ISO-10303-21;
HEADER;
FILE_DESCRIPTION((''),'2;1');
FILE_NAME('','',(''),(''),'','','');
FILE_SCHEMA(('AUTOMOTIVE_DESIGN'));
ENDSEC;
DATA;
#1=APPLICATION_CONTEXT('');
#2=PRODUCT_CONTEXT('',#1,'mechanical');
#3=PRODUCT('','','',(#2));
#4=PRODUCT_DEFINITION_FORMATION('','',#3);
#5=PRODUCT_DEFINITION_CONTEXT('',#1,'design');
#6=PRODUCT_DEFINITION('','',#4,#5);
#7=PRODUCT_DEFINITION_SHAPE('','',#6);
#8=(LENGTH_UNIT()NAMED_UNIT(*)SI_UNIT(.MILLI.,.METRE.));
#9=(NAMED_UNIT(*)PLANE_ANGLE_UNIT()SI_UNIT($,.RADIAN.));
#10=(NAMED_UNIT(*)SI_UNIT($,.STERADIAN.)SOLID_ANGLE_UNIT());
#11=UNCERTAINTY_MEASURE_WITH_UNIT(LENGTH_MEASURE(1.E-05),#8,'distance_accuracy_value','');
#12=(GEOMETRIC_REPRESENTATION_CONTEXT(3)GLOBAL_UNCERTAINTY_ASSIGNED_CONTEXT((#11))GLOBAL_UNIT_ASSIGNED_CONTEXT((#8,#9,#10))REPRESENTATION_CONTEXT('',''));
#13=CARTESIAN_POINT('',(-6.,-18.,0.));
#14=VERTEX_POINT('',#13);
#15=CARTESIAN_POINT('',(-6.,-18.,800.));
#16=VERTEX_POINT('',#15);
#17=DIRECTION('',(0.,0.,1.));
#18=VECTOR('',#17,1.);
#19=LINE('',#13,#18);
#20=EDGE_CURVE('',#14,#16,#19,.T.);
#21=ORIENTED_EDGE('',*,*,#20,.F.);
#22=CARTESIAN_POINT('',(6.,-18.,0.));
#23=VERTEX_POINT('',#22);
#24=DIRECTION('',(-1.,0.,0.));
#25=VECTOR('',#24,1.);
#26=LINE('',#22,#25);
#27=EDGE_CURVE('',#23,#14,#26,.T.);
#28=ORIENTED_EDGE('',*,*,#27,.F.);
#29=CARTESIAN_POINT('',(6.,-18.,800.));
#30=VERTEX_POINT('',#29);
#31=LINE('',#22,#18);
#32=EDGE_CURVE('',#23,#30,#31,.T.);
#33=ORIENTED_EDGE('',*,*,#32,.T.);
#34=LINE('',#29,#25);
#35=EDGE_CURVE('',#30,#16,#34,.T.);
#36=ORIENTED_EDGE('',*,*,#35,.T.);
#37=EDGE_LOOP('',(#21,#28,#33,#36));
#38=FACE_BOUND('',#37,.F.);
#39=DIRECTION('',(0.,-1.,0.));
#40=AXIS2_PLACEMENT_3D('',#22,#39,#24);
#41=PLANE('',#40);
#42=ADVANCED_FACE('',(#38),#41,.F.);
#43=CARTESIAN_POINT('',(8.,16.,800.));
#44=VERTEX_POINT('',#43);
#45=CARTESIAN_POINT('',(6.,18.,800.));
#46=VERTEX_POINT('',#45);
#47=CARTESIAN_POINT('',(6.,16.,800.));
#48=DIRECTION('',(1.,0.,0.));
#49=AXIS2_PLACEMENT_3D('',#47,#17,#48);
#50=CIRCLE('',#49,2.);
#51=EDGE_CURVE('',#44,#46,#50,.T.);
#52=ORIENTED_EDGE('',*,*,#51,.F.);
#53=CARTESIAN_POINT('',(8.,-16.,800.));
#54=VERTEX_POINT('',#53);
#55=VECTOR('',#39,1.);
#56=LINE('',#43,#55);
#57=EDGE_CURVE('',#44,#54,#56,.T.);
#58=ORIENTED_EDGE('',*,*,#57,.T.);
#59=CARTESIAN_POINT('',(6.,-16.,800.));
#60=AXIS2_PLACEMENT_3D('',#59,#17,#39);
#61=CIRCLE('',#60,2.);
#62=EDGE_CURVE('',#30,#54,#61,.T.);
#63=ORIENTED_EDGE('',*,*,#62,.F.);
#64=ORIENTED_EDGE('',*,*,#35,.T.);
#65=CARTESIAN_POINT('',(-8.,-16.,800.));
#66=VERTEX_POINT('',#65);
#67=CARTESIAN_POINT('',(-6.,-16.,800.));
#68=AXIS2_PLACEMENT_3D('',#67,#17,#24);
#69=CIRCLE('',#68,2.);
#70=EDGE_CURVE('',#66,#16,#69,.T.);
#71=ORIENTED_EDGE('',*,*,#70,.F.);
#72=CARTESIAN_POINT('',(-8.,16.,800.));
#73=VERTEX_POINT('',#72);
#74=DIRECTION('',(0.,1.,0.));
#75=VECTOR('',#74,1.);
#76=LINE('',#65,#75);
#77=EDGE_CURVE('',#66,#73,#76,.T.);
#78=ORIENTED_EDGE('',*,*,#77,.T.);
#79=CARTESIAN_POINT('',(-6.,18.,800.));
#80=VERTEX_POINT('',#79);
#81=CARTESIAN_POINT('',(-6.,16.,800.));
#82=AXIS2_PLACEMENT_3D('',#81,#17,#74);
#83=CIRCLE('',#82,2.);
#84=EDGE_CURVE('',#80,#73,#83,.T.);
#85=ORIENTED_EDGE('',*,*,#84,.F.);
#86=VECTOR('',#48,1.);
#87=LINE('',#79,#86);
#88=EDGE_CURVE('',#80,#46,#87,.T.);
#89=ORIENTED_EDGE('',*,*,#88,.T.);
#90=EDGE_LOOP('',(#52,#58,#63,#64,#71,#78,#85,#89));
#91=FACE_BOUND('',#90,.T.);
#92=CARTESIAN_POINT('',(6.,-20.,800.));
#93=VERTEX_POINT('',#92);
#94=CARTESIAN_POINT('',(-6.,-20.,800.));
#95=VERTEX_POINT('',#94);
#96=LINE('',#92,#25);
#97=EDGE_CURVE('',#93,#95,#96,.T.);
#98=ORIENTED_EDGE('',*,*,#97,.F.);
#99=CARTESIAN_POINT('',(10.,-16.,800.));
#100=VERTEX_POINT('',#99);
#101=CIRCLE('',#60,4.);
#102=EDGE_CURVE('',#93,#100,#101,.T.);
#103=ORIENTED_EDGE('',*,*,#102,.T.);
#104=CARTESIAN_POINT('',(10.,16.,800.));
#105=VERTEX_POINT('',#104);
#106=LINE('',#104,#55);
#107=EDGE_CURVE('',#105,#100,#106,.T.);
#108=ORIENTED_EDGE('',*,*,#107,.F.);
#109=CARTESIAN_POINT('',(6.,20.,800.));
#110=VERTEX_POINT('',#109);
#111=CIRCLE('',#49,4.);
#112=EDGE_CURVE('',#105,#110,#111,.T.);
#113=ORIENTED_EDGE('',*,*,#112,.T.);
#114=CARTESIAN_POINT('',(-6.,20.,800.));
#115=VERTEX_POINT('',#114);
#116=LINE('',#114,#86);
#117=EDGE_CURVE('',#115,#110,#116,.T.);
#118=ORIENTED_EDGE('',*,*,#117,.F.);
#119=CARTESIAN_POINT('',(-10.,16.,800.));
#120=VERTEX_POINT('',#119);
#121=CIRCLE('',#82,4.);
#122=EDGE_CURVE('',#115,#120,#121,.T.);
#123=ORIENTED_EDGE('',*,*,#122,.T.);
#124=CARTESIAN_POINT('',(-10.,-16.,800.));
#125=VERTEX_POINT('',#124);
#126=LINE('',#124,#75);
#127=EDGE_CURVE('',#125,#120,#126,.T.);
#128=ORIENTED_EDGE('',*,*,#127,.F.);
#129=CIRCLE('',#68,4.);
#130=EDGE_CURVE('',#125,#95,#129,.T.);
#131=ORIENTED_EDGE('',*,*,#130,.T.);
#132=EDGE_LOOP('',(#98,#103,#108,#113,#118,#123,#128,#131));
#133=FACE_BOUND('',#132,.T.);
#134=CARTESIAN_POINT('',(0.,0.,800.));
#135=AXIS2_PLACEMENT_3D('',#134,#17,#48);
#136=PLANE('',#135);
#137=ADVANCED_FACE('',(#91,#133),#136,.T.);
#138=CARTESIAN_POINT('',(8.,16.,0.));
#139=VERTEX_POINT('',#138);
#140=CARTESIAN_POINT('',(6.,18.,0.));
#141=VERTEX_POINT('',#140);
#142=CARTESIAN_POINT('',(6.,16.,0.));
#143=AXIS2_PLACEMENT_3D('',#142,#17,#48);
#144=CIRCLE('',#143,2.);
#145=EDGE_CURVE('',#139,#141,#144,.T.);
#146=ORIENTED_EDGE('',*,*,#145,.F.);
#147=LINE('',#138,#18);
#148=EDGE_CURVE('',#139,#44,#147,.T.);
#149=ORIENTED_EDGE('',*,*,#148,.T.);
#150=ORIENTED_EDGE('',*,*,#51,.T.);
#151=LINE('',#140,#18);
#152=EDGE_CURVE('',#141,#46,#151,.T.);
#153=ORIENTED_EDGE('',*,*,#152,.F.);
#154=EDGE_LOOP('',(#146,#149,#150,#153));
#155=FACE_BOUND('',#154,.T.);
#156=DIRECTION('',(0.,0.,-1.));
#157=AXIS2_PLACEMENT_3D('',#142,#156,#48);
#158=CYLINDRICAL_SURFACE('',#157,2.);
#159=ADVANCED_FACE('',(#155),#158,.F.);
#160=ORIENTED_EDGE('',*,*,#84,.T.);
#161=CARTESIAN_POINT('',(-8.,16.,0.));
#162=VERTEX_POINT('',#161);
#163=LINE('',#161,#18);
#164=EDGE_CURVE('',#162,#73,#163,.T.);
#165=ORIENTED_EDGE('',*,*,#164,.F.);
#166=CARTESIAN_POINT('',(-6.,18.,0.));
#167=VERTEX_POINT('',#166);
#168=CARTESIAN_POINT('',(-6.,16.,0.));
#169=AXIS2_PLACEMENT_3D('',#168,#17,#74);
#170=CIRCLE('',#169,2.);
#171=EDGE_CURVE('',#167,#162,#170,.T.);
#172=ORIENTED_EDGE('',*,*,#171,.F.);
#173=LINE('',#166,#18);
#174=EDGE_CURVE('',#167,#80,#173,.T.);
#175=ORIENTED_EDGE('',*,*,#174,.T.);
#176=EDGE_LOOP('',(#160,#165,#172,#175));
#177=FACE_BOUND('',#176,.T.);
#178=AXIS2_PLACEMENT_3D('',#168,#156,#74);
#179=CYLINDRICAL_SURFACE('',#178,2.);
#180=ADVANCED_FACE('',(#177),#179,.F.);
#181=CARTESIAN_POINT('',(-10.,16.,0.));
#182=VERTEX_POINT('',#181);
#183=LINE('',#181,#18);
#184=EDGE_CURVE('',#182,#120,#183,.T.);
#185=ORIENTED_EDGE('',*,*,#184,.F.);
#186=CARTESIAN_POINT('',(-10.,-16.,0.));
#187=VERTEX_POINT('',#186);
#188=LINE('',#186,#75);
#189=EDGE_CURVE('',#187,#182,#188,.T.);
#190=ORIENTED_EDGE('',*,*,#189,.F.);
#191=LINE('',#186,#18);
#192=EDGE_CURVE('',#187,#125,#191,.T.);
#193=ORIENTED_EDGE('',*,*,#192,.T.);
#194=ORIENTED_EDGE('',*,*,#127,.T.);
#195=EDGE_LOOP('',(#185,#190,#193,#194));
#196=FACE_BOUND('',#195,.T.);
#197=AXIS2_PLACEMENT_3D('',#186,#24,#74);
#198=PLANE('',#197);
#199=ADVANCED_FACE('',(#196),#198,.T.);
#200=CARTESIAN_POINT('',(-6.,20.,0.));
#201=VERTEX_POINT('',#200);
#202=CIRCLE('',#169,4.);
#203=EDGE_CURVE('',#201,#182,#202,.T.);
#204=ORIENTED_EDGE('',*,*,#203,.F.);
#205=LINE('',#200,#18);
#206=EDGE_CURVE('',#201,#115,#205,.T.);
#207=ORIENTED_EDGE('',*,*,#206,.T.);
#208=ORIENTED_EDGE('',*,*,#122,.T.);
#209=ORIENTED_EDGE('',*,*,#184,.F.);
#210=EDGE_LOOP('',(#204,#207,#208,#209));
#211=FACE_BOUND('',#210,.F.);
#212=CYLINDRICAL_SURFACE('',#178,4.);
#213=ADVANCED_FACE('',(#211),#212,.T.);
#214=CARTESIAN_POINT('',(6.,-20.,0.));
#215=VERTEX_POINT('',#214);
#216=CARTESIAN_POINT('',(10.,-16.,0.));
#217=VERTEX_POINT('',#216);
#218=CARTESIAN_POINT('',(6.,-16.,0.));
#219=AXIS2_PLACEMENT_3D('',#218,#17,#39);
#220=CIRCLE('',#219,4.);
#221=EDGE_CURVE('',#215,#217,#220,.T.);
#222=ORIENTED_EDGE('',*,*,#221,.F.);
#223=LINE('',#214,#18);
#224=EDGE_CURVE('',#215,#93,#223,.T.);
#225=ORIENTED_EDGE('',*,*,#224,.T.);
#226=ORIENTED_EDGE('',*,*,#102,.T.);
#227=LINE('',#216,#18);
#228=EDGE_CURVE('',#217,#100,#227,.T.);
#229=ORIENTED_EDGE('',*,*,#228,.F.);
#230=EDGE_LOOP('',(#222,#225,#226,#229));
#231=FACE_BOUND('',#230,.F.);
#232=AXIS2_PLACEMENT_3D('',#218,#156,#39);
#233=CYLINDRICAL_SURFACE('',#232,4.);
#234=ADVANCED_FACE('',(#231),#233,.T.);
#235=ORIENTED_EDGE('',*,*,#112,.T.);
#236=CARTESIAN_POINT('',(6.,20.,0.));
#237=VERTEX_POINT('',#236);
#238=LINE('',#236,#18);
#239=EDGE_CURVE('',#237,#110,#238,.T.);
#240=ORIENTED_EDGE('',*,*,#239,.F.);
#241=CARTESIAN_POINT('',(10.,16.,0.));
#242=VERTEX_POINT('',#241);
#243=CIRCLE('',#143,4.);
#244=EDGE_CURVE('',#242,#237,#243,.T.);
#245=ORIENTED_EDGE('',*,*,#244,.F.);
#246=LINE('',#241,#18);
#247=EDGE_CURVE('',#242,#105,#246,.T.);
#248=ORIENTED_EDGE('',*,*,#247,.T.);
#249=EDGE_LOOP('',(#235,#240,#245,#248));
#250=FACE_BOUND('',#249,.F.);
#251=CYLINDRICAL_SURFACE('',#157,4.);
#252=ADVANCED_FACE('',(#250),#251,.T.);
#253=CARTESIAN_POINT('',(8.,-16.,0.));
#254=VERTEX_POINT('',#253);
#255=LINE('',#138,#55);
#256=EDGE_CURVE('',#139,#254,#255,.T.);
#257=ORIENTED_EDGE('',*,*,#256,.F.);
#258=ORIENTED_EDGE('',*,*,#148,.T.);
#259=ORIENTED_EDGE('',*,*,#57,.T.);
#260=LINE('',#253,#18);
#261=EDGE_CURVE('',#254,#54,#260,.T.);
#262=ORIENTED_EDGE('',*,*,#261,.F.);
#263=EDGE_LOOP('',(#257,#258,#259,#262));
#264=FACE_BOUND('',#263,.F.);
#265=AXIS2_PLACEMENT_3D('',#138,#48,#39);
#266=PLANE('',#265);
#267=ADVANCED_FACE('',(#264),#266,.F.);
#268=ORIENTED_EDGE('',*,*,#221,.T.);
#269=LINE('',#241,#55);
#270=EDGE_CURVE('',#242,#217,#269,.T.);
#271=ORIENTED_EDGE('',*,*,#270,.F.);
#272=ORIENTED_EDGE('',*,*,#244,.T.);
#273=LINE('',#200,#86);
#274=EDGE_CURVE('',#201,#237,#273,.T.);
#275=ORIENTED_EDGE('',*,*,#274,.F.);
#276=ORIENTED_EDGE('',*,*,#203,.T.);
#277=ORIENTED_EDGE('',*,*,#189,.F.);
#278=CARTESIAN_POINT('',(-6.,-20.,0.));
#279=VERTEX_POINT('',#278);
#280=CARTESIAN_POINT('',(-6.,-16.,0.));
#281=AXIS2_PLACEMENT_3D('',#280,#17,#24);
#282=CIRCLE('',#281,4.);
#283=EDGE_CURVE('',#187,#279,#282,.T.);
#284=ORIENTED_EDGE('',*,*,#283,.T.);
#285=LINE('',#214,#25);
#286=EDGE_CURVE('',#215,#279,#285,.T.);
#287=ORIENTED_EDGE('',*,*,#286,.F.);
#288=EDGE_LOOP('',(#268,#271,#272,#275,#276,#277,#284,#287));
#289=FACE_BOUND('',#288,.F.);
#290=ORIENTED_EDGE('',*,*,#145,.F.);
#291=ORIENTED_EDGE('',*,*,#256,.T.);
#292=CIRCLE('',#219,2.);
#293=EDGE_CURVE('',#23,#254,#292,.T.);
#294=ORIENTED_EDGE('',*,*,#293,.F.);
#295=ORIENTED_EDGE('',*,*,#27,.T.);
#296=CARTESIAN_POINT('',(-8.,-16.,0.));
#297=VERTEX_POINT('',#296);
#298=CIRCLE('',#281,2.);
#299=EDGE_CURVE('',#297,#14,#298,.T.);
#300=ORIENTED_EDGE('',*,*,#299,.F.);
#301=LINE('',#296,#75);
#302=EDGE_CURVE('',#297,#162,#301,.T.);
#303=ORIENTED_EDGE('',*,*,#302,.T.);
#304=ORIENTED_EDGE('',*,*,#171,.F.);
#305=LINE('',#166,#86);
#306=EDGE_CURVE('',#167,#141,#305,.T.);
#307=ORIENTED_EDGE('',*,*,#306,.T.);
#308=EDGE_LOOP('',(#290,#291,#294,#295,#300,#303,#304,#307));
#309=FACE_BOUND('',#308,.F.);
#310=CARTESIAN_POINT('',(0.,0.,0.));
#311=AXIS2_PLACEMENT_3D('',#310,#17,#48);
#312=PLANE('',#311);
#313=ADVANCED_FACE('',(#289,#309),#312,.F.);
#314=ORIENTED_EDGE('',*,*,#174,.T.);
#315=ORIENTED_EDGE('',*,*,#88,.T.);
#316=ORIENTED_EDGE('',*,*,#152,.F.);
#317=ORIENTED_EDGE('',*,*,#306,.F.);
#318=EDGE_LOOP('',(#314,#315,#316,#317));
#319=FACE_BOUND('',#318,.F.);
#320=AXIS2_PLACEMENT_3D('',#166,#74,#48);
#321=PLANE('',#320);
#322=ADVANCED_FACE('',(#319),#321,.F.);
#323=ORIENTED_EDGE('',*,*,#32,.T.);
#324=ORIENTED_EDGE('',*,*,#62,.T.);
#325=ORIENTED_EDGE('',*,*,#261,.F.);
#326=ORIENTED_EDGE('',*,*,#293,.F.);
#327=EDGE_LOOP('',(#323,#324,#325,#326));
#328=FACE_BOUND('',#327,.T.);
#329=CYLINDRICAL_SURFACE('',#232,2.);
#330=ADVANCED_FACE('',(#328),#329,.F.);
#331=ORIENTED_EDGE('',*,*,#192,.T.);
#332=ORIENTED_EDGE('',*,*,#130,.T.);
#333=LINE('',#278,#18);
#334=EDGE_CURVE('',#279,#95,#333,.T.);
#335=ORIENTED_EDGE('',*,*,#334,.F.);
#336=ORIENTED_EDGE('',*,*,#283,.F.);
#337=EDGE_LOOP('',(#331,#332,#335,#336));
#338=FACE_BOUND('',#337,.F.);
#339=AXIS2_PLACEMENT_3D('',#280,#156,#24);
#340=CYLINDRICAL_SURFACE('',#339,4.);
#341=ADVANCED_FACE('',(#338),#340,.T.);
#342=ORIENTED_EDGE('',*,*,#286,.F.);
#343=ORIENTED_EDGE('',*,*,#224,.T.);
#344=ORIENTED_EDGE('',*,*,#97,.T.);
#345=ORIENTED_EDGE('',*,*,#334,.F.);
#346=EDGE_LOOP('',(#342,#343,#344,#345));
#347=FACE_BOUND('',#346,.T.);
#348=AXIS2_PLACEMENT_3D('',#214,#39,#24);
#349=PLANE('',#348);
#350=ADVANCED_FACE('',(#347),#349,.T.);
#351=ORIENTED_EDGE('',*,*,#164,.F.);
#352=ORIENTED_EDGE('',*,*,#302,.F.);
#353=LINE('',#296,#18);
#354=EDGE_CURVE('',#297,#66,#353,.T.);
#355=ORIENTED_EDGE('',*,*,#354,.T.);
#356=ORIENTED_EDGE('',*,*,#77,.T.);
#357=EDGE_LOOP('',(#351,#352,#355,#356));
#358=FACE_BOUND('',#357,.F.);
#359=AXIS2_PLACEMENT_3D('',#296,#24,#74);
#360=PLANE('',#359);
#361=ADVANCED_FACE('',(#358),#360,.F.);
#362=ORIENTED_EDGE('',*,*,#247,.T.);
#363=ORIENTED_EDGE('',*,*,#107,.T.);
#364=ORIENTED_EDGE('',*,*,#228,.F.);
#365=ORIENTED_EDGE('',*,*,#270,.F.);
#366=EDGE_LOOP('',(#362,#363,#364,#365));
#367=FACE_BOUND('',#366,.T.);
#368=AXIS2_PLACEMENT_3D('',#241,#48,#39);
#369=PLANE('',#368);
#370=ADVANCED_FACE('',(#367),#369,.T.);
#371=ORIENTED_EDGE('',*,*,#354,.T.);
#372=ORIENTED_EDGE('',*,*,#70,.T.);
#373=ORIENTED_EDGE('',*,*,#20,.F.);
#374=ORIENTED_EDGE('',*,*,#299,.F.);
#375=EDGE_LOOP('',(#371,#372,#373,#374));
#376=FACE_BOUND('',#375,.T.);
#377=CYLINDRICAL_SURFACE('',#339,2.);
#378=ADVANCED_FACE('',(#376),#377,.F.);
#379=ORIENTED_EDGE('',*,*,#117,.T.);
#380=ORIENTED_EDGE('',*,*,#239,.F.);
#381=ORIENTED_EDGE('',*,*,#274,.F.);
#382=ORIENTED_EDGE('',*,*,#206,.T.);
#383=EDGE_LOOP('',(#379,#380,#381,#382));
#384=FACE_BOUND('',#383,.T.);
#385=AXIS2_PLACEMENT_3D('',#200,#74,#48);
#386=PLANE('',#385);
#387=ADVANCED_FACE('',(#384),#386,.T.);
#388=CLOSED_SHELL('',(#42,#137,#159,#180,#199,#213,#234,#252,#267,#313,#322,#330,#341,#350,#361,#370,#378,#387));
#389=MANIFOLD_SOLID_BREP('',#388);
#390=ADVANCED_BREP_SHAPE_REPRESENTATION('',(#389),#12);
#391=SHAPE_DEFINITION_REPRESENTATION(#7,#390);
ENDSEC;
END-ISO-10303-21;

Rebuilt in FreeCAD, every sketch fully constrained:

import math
import FreeCAD as App
import Part
import Sketcher
from FreeCAD import Vector

doc = App.newDocument("Part")
body = doc.addObject("PartDesign::Body", "Body")

# Sketch on XY plane
sketch1 = doc.addObject("Sketcher::SketchObject", "Sketch")
body.addObject(sketch1)
sketch1.AttachmentSupport = (doc.XY_Plane, [""])
sketch1.MapMode = "FlatFace"
sketch1.addGeometry([
    Part.LineSegment(Vector(-10, 16, 0), Vector(-10, -16, 0)),  # 0
    Part.ArcOfCircle(Part.Circle(Vector(-6, -16, 0), Vector(0, 0, 1), 4), math.radians(180), math.radians(270)),  # 1
    Part.LineSegment(Vector(-6, -20, 0), Vector(6, -20, 0)),  # 2
    Part.ArcOfCircle(Part.Circle(Vector(6, -16, 0), Vector(0, 0, 1), 4), math.radians(-90), math.radians(0)),  # 3
    Part.LineSegment(Vector(10, -16, 0), Vector(10, 16, 0)),  # 4
    Part.ArcOfCircle(Part.Circle(Vector(6, 16, 0), Vector(0, 0, 1), 4), math.radians(0), math.radians(90)),  # 5
    Part.LineSegment(Vector(6, 20, 0), Vector(-6, 20, 0)),  # 6
    Part.ArcOfCircle(Part.Circle(Vector(-6, 16, 0), Vector(0, 0, 1), 4), math.radians(90), math.radians(180)),  # 7
    Part.ArcOfCircle(Part.Circle(Vector(-6, 16, 0), Vector(0, 0, 1), 2), math.radians(90), math.radians(180)),  # 8
    Part.LineSegment(Vector(-6, 18, 0), Vector(6, 18, 0)),  # 9
    Part.ArcOfCircle(Part.Circle(Vector(6, 16, 0), Vector(0, 0, 1), 2), math.radians(0), math.radians(90)),  # 10
    Part.LineSegment(Vector(8, 16, 0), Vector(8, -16, 0)),  # 11
    Part.ArcOfCircle(Part.Circle(Vector(6, -16, 0), Vector(0, 0, 1), 2), math.radians(-90), math.radians(0)),  # 12
    Part.LineSegment(Vector(6, -18, 0), Vector(-6, -18, 0)),  # 13
    Part.ArcOfCircle(Part.Circle(Vector(-6, -16, 0), Vector(0, 0, 1), 2), math.radians(180), math.radians(270)),  # 14
    Part.LineSegment(Vector(-8, -16, 0), Vector(-8, 16, 0)),  # 15
], False)
sketch1.addConstraint([
    Sketcher.Constraint("Tangent", 0, 2, 1, 1),
    Sketcher.Constraint("Tangent", 1, 2, 2, 1),
    Sketcher.Constraint("Tangent", 2, 2, 3, 1),
    Sketcher.Constraint("Tangent", 3, 2, 4, 1),
    Sketcher.Constraint("Tangent", 4, 2, 5, 1),
    Sketcher.Constraint("Tangent", 5, 2, 6, 1),
    Sketcher.Constraint("Tangent", 6, 2, 7, 1),
    Sketcher.Constraint("Tangent", 7, 2, 0, 1),
    Sketcher.Constraint("Tangent", 8, 1, 9, 1),
    Sketcher.Constraint("Tangent", 9, 2, 10, 2),
    Sketcher.Constraint("Tangent", 10, 1, 11, 1),
    Sketcher.Constraint("Tangent", 11, 2, 12, 2),
    Sketcher.Constraint("Tangent", 12, 1, 13, 1),
    Sketcher.Constraint("Tangent", 13, 2, 14, 2),
    Sketcher.Constraint("Tangent", 14, 1, 15, 1),
    Sketcher.Constraint("Tangent", 15, 2, 8, 2),
    Sketcher.Constraint("Vertical", 0),
    Sketcher.Constraint("Horizontal", 2),
    Sketcher.Constraint("Vertical", 4),
    Sketcher.Constraint("Horizontal", 6),
    Sketcher.Constraint("Horizontal", 9),
    Sketcher.Constraint("Vertical", 11),
    Sketcher.Constraint("Horizontal", 13),
    Sketcher.Constraint("Vertical", 15),
    Sketcher.Constraint("Coincident", 8, 3, 7, 3),
    Sketcher.Constraint("Coincident", 10, 3, 5, 3),
    Sketcher.Constraint("Coincident", 12, 3, 3, 3),
    Sketcher.Constraint("Equal", 1, 3),
    Sketcher.Constraint("Equal", 3, 5),
    Sketcher.Constraint("Equal", 5, 7),
    Sketcher.Constraint("Equal", 12, 14),
    Sketcher.Constraint("Symmetric", 1, 3, 5, 3, -1, 1),
    Sketcher.Constraint("Radius", 1, 4.0),
    Sketcher.Constraint("Radius", 8, 2.0),
    Sketcher.Constraint("DistanceX", 0, 2, -1, 1, 10.0),
    Sketcher.Constraint("DistanceY", 1, 2, -1, 1, 20.0),
])
pad1 = doc.addObject("PartDesign::Pad", "Pad")
body.addObject(pad1)
pad1.Profile = sketch1
pad1.Length = 800

doc.recompute()
